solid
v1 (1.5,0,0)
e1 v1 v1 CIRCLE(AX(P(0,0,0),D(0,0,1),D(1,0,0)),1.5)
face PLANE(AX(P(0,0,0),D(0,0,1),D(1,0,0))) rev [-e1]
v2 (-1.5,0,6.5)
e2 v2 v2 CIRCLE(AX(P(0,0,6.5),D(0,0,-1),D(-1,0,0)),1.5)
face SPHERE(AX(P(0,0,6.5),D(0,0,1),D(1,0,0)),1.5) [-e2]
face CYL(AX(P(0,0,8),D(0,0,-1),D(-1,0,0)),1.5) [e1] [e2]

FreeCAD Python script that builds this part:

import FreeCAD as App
import Part
import Sketcher

V = App.Vector
Q = App.Units.Quantity


def edges_at(feature, points):
    """Names of the edges that pass closest to the given points."""
    edges = feature.Shape.Edges
    near = lambda p: min(range(len(edges)), key=lambda i: edges[i].distToShape(Part.Vertex(*p))[0])
    return sorted({f"Edge{near(p) + 1}" for p in points})

doc = App.newDocument("Part")
body = doc.addObject("PartDesign::Body", "Body")

sketch1 = body.newObject("Sketcher::SketchObject", "Sketch")
sketch1.AttachmentSupport = (doc.getObject("XY_Plane"), [""])
sketch1.MapMode = "FlatFace"
sketch1.addGeometry(Part.Circle(V(0, 0, 0), V(0, 0, 1), 1.5), False)
sketch1.addConstraint(Sketcher.Constraint("Coincident", 0, 3, -1, 1))
sketch1.addConstraint(Sketcher.Constraint("Diameter", 0, Q("3 mm")))
pad1 = body.newObject("PartDesign::Pad", "Pad")
pad1.Profile = sketch1
pad1.Length = 8
doc.recompute()

fillet = body.newObject("PartDesign::Fillet", "Fillet")
fillet.Base = (pad1, edges_at(pad1, [(-1.5, 0, 8)]))
fillet.Radius = 1.5

doc.recompute()
